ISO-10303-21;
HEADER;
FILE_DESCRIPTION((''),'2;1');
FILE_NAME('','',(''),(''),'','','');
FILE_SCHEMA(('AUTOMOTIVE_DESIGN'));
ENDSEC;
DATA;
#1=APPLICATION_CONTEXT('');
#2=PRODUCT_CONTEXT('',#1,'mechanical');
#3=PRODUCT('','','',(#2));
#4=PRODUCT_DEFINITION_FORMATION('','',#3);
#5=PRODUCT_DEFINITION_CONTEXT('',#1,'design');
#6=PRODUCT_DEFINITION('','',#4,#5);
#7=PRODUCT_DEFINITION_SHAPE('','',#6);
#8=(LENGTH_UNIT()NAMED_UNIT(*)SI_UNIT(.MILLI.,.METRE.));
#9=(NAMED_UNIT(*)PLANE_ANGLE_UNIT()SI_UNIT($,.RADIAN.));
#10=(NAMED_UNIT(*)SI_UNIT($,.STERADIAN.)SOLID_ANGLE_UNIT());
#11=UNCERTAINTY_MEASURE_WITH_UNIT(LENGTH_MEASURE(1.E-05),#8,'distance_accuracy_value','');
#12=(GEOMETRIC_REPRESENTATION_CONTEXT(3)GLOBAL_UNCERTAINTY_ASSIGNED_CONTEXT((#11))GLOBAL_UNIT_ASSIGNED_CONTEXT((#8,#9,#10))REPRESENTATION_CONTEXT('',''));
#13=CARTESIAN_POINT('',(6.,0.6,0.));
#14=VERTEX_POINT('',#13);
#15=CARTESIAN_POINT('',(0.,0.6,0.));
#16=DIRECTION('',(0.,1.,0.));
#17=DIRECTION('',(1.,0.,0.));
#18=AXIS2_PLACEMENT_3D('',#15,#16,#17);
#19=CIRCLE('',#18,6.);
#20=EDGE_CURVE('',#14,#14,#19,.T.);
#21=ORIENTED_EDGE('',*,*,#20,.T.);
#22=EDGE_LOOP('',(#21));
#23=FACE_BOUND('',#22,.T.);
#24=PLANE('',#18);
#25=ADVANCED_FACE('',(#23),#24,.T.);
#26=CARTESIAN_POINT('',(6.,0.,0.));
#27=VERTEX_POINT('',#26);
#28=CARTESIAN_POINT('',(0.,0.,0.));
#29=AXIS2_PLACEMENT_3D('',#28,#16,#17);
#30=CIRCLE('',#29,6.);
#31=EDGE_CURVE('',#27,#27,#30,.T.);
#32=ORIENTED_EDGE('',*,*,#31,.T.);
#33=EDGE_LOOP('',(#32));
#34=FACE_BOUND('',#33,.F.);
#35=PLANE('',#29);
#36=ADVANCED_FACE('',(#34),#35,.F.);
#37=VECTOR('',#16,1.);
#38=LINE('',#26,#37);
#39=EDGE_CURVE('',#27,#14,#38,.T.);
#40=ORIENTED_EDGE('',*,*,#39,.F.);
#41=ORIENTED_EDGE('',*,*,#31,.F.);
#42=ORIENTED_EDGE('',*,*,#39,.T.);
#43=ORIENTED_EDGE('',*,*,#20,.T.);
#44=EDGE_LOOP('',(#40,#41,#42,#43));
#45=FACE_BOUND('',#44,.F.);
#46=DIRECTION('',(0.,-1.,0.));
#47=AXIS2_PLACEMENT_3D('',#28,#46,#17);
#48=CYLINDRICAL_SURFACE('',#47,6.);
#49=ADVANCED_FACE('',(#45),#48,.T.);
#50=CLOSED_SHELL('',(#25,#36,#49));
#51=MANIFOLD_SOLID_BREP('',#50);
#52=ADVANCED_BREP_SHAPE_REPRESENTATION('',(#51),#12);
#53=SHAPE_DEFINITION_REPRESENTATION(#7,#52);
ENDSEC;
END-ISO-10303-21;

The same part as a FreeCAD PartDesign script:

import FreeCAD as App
import Part
import Sketcher
from FreeCAD import Vector

doc = App.newDocument("Part")
body = doc.addObject("PartDesign::Body", "Body")

# Sketch on XZ plane
sketch1 = body.newObject("Sketcher::SketchObject", "Sketch")
sketch1.AttachmentSupport = (doc.getObject("XZ_Plane"), [""])
sketch1.MapMode = "FlatFace"
sketch1.addGeometry(Part.Circle(Vector(0, 0, 0), Vector(0, 0, 1), 6), False)
sketch1.addConstraint(Sketcher.Constraint("Coincident", 0, 3, -1, 1))
sketch1.addConstraint(Sketcher.Constraint("Diameter", 0, 12.0))
pad1 = body.newObject("PartDesign::Pad", "Pad")
pad1.Profile = sketch1
pad1.Length = 0.6
pad1.Reversed = True

doc.recompute()
